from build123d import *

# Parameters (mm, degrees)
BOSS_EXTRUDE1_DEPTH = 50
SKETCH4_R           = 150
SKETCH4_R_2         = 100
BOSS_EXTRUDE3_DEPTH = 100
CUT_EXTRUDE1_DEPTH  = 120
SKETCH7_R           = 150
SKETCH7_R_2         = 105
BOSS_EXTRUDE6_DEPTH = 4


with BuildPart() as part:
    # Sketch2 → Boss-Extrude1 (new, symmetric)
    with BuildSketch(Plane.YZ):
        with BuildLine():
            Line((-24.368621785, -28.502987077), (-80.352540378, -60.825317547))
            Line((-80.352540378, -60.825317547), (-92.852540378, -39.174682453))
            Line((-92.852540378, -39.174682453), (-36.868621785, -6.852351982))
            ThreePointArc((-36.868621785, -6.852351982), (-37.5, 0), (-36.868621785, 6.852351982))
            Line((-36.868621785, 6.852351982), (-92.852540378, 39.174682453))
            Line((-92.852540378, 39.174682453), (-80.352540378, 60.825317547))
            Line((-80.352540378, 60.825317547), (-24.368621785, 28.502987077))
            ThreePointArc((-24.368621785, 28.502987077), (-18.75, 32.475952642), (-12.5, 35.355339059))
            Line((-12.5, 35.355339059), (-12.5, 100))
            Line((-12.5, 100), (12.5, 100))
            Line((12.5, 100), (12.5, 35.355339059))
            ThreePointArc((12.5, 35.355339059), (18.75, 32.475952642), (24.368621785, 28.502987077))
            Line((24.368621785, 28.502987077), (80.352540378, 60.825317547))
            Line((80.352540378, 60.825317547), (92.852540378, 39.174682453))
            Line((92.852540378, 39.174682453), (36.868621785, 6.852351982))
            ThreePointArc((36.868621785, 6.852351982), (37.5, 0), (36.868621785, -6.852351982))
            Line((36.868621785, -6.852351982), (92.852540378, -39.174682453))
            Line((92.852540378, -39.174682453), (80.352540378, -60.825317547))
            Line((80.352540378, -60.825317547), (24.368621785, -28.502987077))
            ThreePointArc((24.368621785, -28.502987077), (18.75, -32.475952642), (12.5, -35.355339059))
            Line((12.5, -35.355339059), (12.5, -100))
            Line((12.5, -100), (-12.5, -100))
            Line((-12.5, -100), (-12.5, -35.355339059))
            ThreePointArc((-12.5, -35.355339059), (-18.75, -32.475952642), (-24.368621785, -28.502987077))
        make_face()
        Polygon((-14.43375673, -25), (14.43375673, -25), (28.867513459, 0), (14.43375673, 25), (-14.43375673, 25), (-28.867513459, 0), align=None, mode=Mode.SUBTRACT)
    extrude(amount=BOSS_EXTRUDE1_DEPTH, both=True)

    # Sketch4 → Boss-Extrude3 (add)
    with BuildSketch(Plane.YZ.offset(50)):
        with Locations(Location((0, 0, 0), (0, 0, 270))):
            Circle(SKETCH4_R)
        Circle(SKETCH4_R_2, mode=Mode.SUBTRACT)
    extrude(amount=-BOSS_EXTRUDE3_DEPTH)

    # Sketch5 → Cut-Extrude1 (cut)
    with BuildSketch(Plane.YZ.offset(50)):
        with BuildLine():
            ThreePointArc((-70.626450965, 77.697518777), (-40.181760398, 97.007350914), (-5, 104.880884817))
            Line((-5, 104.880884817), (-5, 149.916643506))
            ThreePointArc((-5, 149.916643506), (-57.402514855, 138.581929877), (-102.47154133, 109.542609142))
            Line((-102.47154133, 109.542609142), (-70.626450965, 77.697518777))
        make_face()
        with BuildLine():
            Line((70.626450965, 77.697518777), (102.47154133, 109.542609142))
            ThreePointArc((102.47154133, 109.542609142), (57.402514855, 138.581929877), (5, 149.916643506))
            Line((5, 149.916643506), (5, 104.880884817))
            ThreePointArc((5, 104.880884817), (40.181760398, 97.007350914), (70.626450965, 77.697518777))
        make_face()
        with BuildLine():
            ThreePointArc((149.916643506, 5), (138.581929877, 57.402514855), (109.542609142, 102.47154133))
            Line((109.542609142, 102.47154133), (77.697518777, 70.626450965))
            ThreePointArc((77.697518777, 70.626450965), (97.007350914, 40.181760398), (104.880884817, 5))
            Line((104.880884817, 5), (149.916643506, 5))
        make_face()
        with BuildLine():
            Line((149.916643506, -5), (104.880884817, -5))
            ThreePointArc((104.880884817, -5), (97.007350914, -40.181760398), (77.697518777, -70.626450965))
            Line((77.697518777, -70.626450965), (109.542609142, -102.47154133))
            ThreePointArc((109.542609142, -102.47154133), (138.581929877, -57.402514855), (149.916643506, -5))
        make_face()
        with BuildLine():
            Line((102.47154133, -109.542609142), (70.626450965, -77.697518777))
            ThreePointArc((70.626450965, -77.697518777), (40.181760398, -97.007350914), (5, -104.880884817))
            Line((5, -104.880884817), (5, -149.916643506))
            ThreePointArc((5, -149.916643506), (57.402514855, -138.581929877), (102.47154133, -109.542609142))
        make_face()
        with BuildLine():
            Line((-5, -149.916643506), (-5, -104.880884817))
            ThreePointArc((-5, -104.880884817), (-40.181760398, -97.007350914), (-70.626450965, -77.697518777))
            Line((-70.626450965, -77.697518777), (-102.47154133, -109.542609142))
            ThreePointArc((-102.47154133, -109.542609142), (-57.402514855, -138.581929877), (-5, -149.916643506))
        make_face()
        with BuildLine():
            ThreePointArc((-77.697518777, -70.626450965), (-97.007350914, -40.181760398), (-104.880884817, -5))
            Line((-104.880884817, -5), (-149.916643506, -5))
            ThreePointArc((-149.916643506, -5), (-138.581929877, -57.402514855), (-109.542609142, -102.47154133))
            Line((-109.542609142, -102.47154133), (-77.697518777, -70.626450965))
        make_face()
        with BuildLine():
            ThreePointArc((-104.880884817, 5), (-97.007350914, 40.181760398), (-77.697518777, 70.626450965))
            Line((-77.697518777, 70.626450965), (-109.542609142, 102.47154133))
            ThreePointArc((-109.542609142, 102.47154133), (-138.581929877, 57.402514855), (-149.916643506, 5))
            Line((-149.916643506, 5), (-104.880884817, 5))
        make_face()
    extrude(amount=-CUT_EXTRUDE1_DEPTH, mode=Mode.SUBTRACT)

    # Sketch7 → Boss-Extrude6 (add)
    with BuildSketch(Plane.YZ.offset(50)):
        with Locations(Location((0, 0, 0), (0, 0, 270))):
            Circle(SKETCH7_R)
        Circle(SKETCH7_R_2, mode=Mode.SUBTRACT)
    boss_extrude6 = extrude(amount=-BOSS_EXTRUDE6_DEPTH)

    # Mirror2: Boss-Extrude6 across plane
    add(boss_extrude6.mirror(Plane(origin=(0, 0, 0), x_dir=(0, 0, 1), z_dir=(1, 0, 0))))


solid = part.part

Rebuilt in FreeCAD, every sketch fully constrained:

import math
import FreeCAD as App
import Part
import Sketcher

V = App.Vector
Q = App.Units.Quantity


def add_polygon(sketch, points):
    """Adds a closed chain of lines whose ends are joined by coincident constraints."""
    first, n = sketch.GeometryCount, len(points)
    for a, b in zip(points, points[1:] + points[:1]):
        sketch.addGeometry(Part.LineSegment(App.Vector(*a, 0), App.Vector(*b, 0)), False)
    for i in range(n):
        sketch.addConstraint(Sketcher.Constraint("Coincident", first + i, 2, first + (i + 1) % n, 1))

doc = App.newDocument("Part")
body = doc.addObject("PartDesign::Body", "Body")

# Sketch on YZ plane
sketch1 = doc.addObject("Sketcher::SketchObject", "Sketch")
body.addObject(sketch1)
sketch1.AttachmentSupport = (doc.YZ_Plane, [""])
sketch1.MapMode = "FlatFace"
sketch1.addGeometry(Part.LineSegment(V(-80.35254, -60.825318, 0), V(-24.368622, -28.502987, 0)), False)  # 0
sketch1.addGeometry(Part.ArcOfCircle(Part.Circle(V(0, 0, 0), V(0, 0, 1), 37.5), math.radians(-130.528779), math.radians(-109.471221)), False)  # 1
sketch1.addGeometry(Part.LineSegment(V(-12.5, -35.355339, 0), V(-12.5, -100, 0)), False)  # 2
sketch1.addGeometry(Part.LineSegment(V(-12.5, -100, 0), V(12.5, -100, 0)), False)  # 3
sketch1.addGeometry(Part.LineSegment(V(12.5, -100, 0), V(12.5, -35.355339, 0)), False)  # 4
sketch1.addGeometry(Part.ArcOfCircle(Part.Circle(V(0, 0, 0), V(0, 0, 1), 37.5), math.radians(-70.528779), math.radians(-49.471221)), False)  # 5
sketch1.addGeometry(Part.LineSegment(V(24.368622, -28.502987, 0), V(80.35254, -60.825318, 0)), False)  # 6
sketch1.addGeometry(Part.LineSegment(V(80.35254, -60.825318, 0), V(92.85254, -39.174682, 0)), False)  # 7
sketch1.addGeometry(Part.LineSegment(V(92.85254, -39.174682, 0), V(36.868622, -6.852352, 0)), False)  # 8
sketch1.addGeometry(Part.ArcOfCircle(Part.Circle(V(0, 0, 0), V(0, 0, 1), 37.5), math.radians(-10.528779), math.radians(10.528779)), False)  # 9
sketch1.addGeometry(Part.LineSegment(V(36.868622, 6.852352, 0), V(92.85254, 39.174682, 0)), False)  # 10
sketch1.addGeometry(Part.LineSegment(V(92.85254, 39.174682, 0), V(80.35254, 60.825318, 0)), False)  # 11
sketch1.addGeometry(Part.LineSegment(V(80.35254, 60.825318, 0), V(24.368622, 28.502987, 0)), False)  # 12
sketch1.addGeometry(Part.ArcOfCircle(Part.Circle(V(0, 0, 0), V(0, 0, 1), 37.5), math.radians(49.471221), math.radians(70.528779)), False)  # 13
sketch1.addGeometry(Part.LineSegment(V(12.5, 35.355339, 0), V(12.5, 100, 0)), False)  # 14
sketch1.addGeometry(Part.LineSegment(V(12.5, 100, 0), V(-12.5, 100, 0)), False)  # 15
sketch1.addGeometry(Part.LineSegment(V(-12.5, 100, 0), V(-12.5, 35.355339, 0)), False)  # 16
sketch1.addGeometry(Part.ArcOfCircle(Part.Circle(V(0, 0, 0), V(0, 0, 1), 37.5), math.radians(109.471221), math.radians(130.528779)), False)  # 17
sketch1.addGeometry(Part.LineSegment(V(-24.368622, 28.502987, 0), V(-80.35254, 60.825318, 0)), False)  # 18
sketch1.addGeometry(Part.LineSegment(V(-80.35254, 60.825318, 0), V(-92.85254, 39.174682, 0)), False)  # 19
sketch1.addGeometry(Part.LineSegment(V(-92.85254, 39.174682, 0), V(-36.868622, 6.852352, 0)), False)  # 20
sketch1.addGeometry(Part.ArcOfCircle(Part.Circle(V(0, 0, 0), V(0, 0, 1), 37.5), math.radians(169.471221), math.radians(190.528779)), False)  # 21
sketch1.addGeometry(Part.LineSegment(V(-36.868622, -6.852352, 0), V(-92.85254, -39.174682, 0)), False)  # 22
sketch1.addGeometry(Part.LineSegment(V(-92.85254, -39.174682, 0), V(-80.35254, -60.825318, 0)), False)  # 23
add_polygon(sketch1, [(-14.433757, -25), (-28.867513, 0), (-14.433757, 25), (14.433757, 25), (28.867513, 0), (14.433757, -25)])  # lines 24-29
sketch1.addConstraint([
    Sketcher.Constraint("Coincident", 0, 2, 1, 1),
    Sketcher.Constraint("Coincident", 1, 2, 2, 1),
    Sketcher.Constraint("Coincident", 2, 2, 3, 1),
    Sketcher.Constraint("Coincident", 3, 2, 4, 1),
    Sketcher.Constraint("Coincident", 4, 2, 5, 1),
    Sketcher.Constraint("Coincident", 5, 2, 6, 1),
    Sketcher.Constraint("Coincident", 6, 2, 7, 1),
    Sketcher.Constraint("Coincident", 7, 2, 8, 1),
    Sketcher.Constraint("Coincident", 8, 2, 9, 1),
    Sketcher.Constraint("Coincident", 9, 2, 10, 1),
    Sketcher.Constraint("Coincident", 10, 2, 11, 1),
    Sketcher.Constraint("Coincident", 11, 2, 12, 1),
    Sketcher.Constraint("Coincident", 12, 2, 13, 1),
    Sketcher.Constraint("Coincident", 13, 2, 14, 1),
    Sketcher.Constraint("Coincident", 14, 2, 15, 1),
    Sketcher.Constraint("Coincident", 15, 2, 16, 1),
    Sketcher.Constraint("Coincident", 16, 2, 17, 1),
    Sketcher.Constraint("Coincident", 17, 2, 18, 1),
    Sketcher.Constraint("Coincident", 18, 2, 19, 1),
    Sketcher.Constraint("Coincident", 19, 2, 20, 1),
    Sketcher.Constraint("Coincident", 20, 2, 21, 1),
    Sketcher.Constraint("Coincident", 21, 2, 22, 1),
    Sketcher.Constraint("Coincident", 22, 2, 23, 1),
    Sketcher.Constraint("Coincident", 23, 2, 0, 1),
    Sketcher.Constraint("Vertical", 2),
    Sketcher.Constraint("Horizontal", 3),
    Sketcher.Constraint("Vertical", 4),
    Sketcher.Constraint("Vertical", 14),
    Sketcher.Constraint("Horizontal", 15),
    Sketcher.Constraint("Vertical", 16),
    Sketcher.Constraint("Horizontal", 26),
    Sketcher.Constraint("Horizontal", 29),
    Sketcher.Constraint("Coincident", 1, 3, -1, 1),
    Sketcher.Constraint("Coincident", 5, 3, -1, 1),
    Sketcher.Constraint("Coincident", 9, 3, -1, 1),
    Sketcher.Constraint("Coincident", 13, 3, -1, 1),
    Sketcher.Constraint("Coincident", 17, 3, -1, 1),
    Sketcher.Constraint("Coincident", 21, 3, -1, 1),
    Sketcher.Constraint("Equal", 1, 5),
    Sketcher.Constraint("Equal", 5, 9),
    Sketcher.Constraint("Equal", 9, 13),
    Sketcher.Constraint("Equal", 13, 17),
    Sketcher.Constraint("Equal", 17, 21),
    Sketcher.Constraint("Symmetric", 2, 2, 14, 2, -1, 1),
    Sketcher.Constraint("Symmetric", 6, 2, 18, 2, -1, 1),
    Sketcher.Constraint("Symmetric", 7, 2, 19, 2, -1, 1),
    Sketcher.Constraint("Symmetric", 10, 2, 22, 2, -1, 1),
    Sketcher.Constraint("Symmetric", 11, 2, 23, 2, -1, 1),
    Sketcher.Constraint("Symmetric", 24, 2, 27, 2, -1, 1),
    Sketcher.Constraint("Symmetric", 25, 2, 28, 2, -1, 1),
    Sketcher.Constraint("Symmetric", 11, 2, 18, 2, -2),
    Sketcher.Constraint("Symmetric", 10, 2, 19, 2, -2),
    Sketcher.Constraint("PointOnObject", 24, 2, -1),
    Sketcher.Constraint("Perpendicular", 6, 7),
    Sketcher.Constraint("Perpendicular", 7, 8),
    Sketcher.Constraint("Parallel", 0, 10),
    Sketcher.Constraint("Perpendicular", 10, 11),
    Sketcher.Constraint("Perpendicular", 11, 12),
    Sketcher.Constraint("Parallel", 8, 18),
    Sketcher.Constraint("Perpendicular", 19, 20),
    Sketcher.Constraint("Parallel", 12, 22),
    Sketcher.Constraint("Parallel", 23, 24),
    Sketcher.Constraint("Perpendicular", 20, 25),
    Sketcher.Constraint("Parallel", 24, 27),
    Sketcher.Constraint("Horizontal", 1, 2, 4, 2),
    Sketcher.Constraint("Horizontal", 13, 2, 16, 2),
    Sketcher.Constraint("Equal", 6, 8),
    Sketcher.Constraint("Radius", 1, Q("37.5 mm")),
    Sketcher.Constraint("DistanceX", 3, 1, 3, 2, Q("25 mm")),
    Sketcher.Constraint("Angle", 0, Q("30 deg")),
    Sketcher.Constraint("Distance", 7, Q("25 mm")),
    Sketcher.Constraint("DistanceY", 2, 2, -1, 1, Q("100 mm")),
    Sketcher.Constraint("DistanceY", -1, 1, 25, 2, Q("25 mm")),
    Sketcher.Constraint("Distance", 0, Q("64.644661 mm")),
    Sketcher.Constraint("DistanceX", 26, 1, 26, 2, Q("28.867513 mm")),
])
pad1 = doc.addObject("PartDesign::Pad", "Pad")
body.addObject(pad1)
pad1.Profile = sketch1
pad1.Length = 100
pad1.Midplane = True

# Sketch on YZ plane
sketch2 = doc.addObject("Sketcher::SketchObject", "Sketch001")
body.addObject(sketch2)
sketch2.AttachmentSupport = (doc.YZ_Plane, [""])
sketch2.MapMode = "FlatFace"
sketch2.AttachmentOffset = App.Placement(V(0, 0, 50), App.Rotation())
sketch2.addGeometry([
    Part.Circle(V(0, 0, 0), V(0, 0, 1), 150),
    Part.Circle(V(0, 0, 0), V(0, 0, 1), 100),
], False)
sketch2.addConstraint([
    Sketcher.Constraint("Coincident", 0, 3, -1, 1),
    Sketcher.Constraint("Coincident", 1, 3, -1, 1),
    Sketcher.Constraint("Diameter", 0, Q("300 mm")),
    Sketcher.Constraint("Diameter", 1, Q("200 mm")),
])
pad2 = doc.addObject("PartDesign::Pad", "Pad001")
body.addObject(pad2)
pad2.Profile = sketch2
pad2.Length = 100
pad2.Reversed = True

# Sketch on YZ plane
sketch3 = doc.addObject("Sketcher::SketchObject", "Sketch002")
body.addObject(sketch3)
sketch3.AttachmentSupport = (doc.YZ_Plane, [""])
sketch3.MapMode = "FlatFace"
sketch3.AttachmentOffset = App.Placement(V(0, 0, 50), App.Rotation())
sketch3.addGeometry([
    Part.ArcOfCircle(Part.Circle(V(0, 0, 0), V(0, 0, 1), 105), math.radians(92.729403), math.radians(132.270597)),  # 0
    Part.LineSegment(V(-5, 104.880885, 0), V(-5, 149.916644, 0)),  # 1
    Part.ArcOfCircle(Part.Circle(V(0, 0, 0), V(0, 0, 1), 150), math.radians(91.910213), math.radians(133.089787)),  # 2
    Part.LineSegment(V(-102.471541, 109.542609, 0), V(-70.626451, 77.697519, 0)),  # 3
    Part.LineSegment(V(70.626451, 77.697519, 0), V(102.471541, 109.542609, 0)),  # 4
    Part.ArcOfCircle(Part.Circle(V(0, 0, 0), V(0, 0, 1), 150), math.radians(46.910213), math.radians(88.089787)),  # 5
    Part.LineSegment(V(5, 149.916644, 0), V(5, 104.880885, 0)),  # 6
    Part.ArcOfCircle(Part.Circle(V(0, 0, 0), V(0, 0, 1), 105), math.radians(47.729403), math.radians(87.270597)),  # 7
    Part.ArcOfCircle(Part.Circle(V(0, 0, 0), V(0, 0, 1), 150), math.radians(1.910213), math.radians(43.089787)),  # 8
    Part.LineSegment(V(109.542609, 102.471541, 0), V(77.697519, 70.626451, 0)),  # 9
    Part.ArcOfCircle(Part.Circle(V(0, 0, 0), V(0, 0, 1), 105), math.radians(2.729403), math.radians(42.270597)),  # 10
    Part.LineSegment(V(104.880885, 5, 0), V(149.916644, 5, 0)),  # 11
    Part.LineSegment(V(149.916644, -5, 0), V(104.880885, -5, 0)),  # 12
    Part.ArcOfCircle(Part.Circle(V(0, 0, 0), V(0, 0, 1), 105), math.radians(-42.270597), math.radians(-2.729403)),  # 13
    Part.LineSegment(V(77.697519, -70.626451, 0), V(109.542609, -102.471541, 0)),  # 14
    Part.ArcOfCircle(Part.Circle(V(0, 0, 0), V(0, 0, 1), 150), math.radians(-43.089787), math.radians(-1.910213)),  # 15
    Part.LineSegment(V(102.471541, -109.542609, 0), V(70.626451, -77.697519, 0)),  # 16
    Part.ArcOfCircle(Part.Circle(V(0, 0, 0), V(0, 0, 1), 105), math.radians(-87.270597), math.radians(-47.729403)),  # 17
    Part.LineSegment(V(5, -104.880885, 0), V(5, -149.916644, 0)),  # 18
    Part.ArcOfCircle(Part.Circle(V(0, 0, 0), V(0, 0, 1), 150), math.radians(-88.089787), math.radians(-46.910213)),  # 19
    Part.LineSegment(V(-5, -149.916644, 0), V(-5, -104.880885, 0)),  # 20
    Part.ArcOfCircle(Part.Circle(V(0, 0, 0), V(0, 0, 1), 105), math.radians(-132.270597), math.radians(-92.729403)),  # 21
    Part.LineSegment(V(-70.626451, -77.697519, 0), V(-102.471541, -109.542609, 0)),  # 22
    Part.ArcOfCircle(Part.Circle(V(0, 0, 0), V(0, 0, 1), 150), math.radians(-133.089787), math.radians(-91.910213)),  # 23
    Part.ArcOfCircle(Part.Circle(V(0, 0, 0), V(0, 0, 1), 105), math.radians(-177.270597), math.radians(-137.729403)),  # 24
    Part.LineSegment(V(-104.880885, -5, 0), V(-149.916644, -5, 0)),  # 25
    Part.ArcOfCircle(Part.Circle(V(0, 0, 0), V(0, 0, 1), 150), math.radians(-178.089787), math.radians(-136.910213)),  # 26
    Part.LineSegment(V(-109.542609, -102.471541, 0), V(-77.697519, -70.626451, 0)),  # 27
    Part.ArcOfCircle(Part.Circle(V(0, 0, 0), V(0, 0, 1), 105), math.radians(137.729403), math.radians(177.270597)),  # 28
    Part.LineSegment(V(-77.697519, 70.626451, 0), V(-109.542609, 102.471541, 0)),  # 29
    Part.ArcOfCircle(Part.Circle(V(0, 0, 0), V(0, 0, 1), 150), math.radians(136.910213), math.radians(178.089787)),  # 30
    Part.LineSegment(V(-149.916644, 5, 0), V(-104.880885, 5, 0)),  # 31
], False)
sketch3.addConstraint([
    Sketcher.Constraint("Coincident", 0, 1, 1, 1),
    Sketcher.Constraint("Coincident", 1, 2, 2, 1),
    Sketcher.Constraint("Coincident", 2, 2, 3, 1),
    Sketcher.Constraint("Coincident", 3, 2, 0, 2),
    Sketcher.Constraint("Coincident", 4, 2, 5, 1),
    Sketcher.Constraint("Coincident", 5, 2, 6, 1),
    Sketcher.Constraint("Coincident", 6, 2, 7, 2),
    Sketcher.Constraint("Coincident", 7, 1, 4, 1),
    Sketcher.Constraint("Coincident", 8, 2, 9, 1),
    Sketcher.Constraint("Coincident", 9, 2, 10, 2),
    Sketcher.Constraint("Coincident", 10, 1, 11, 1),
    Sketcher.Constraint("Coincident", 11, 2, 8, 1),
    Sketcher.Constraint("Coincident", 12, 2, 13, 2),
    Sketcher.Constraint("Coincident", 13, 1, 14, 1),
    Sketcher.Constraint("Coincident", 14, 2, 15, 1),
    Sketcher.Constraint("Coincident", 15, 2, 12, 1),
    Sketcher.Constraint("Coincident", 16, 2, 17, 2),
    Sketcher.Constraint("Coincident", 17, 1, 18, 1),
    Sketcher.Constraint("Coincident", 18, 2, 19, 1),
    Sketcher.Constraint("Coincident", 19, 2, 16, 1),
    Sketcher.Constraint("Coincident", 20, 2, 21, 2),
    Sketcher.Constraint("Coincident", 21, 1, 22, 1),
    Sketcher.Constraint("Coincident", 22, 2, 23, 1),
    Sketcher.Constraint("Coincident", 23, 2, 20, 1),
    Sketcher.Constraint("Coincident", 24, 1, 25, 1),
    Sketcher.Constraint("Coincident", 25, 2, 26, 1),
    Sketcher.Constraint("Coincident", 26, 2, 27, 1),
    Sketcher.Constraint("Coincident", 27, 2, 24, 2),
    Sketcher.Constraint("Coincident", 28, 1, 29, 1),
    Sketcher.Constraint("Coincident", 29, 2, 30, 1),
    Sketcher.Constraint("Coincident", 30, 2, 31, 1),
    Sketcher.Constraint("Coincident", 31, 2, 28, 2),
    Sketcher.Constraint("Vertical", 1),
    Sketcher.Constraint("Vertical", 6),
    Sketcher.Constraint("Horizontal", 11),
    Sketcher.Constraint("Horizontal", 12),
    Sketcher.Constraint("Vertical", 18),
    Sketcher.Constraint("Vertical", 20),
    Sketcher.Constraint("Horizontal", 25),
    Sketcher.Constraint("Horizontal", 31),
    Sketcher.Constraint("Coincident", 0, 3, -1, 1),
    Sketcher.Constraint("Coincident", 2, 3, -1, 1),
    Sketcher.Constraint("Coincident", 5, 3, -1, 1),
    Sketcher.Constraint("Coincident", 7, 3, -1, 1),
    Sketcher.Constraint("Coincident", 8, 3, -1, 1),
    Sketcher.Constraint("Coincident", 10, 3, -1, 1),
    Sketcher.Constraint("Coincident", 13, 3, -1, 1),
    Sketcher.Constraint("Coincident", 15, 3, -1, 1),
    Sketcher.Constraint("Coincident", 17, 3, -1, 1),
    Sketcher.Constraint("Coincident", 19, 3, -1, 1),
    Sketcher.Constraint("Coincident", 21, 3, -1, 1),
    Sketcher.Constraint("Coincident", 23, 3, -1, 1),
    Sketcher.Constraint("Coincident", 24, 3, -1, 1),
    Sketcher.Constraint("Coincident", 26, 3, -1, 1),
    Sketcher.Constraint("Coincident", 28, 3, -1, 1),
    Sketcher.Constraint("Coincident", 30, 3, -1, 1),
    Sketcher.Constraint("Radius", 0, Q("105 mm")),
    Sketcher.Constraint("Radius", 2, Q("150 mm")),
    Sketcher.Constraint("Radius", 5, Q("150 mm")),
    Sketcher.Constraint("Radius", 7, Q("105 mm")),
    Sketcher.Constraint("Radius", 8, Q("150 mm")),
    Sketcher.Constraint("Radius", 10, Q("105 mm")),
    Sketcher.Constraint("Radius", 13, Q("105 mm")),
    Sketcher.Constraint("Radius", 15, Q("150 mm")),
    Sketcher.Constraint("Radius", 17, Q("105 mm")),
    Sketcher.Constraint("Radius", 19, Q("150 mm")),
    Sketcher.Constraint("Radius", 21, Q("105 mm")),
    Sketcher.Constraint("Radius", 23, Q("150 mm")),
    Sketcher.Constraint("Radius", 24, Q("105 mm")),
    Sketcher.Constraint("Radius", 26, Q("150 mm")),
    Sketcher.Constraint("Radius", 28, Q("105 mm")),
    Sketcher.Constraint("Radius", 30, Q("150 mm")),
    Sketcher.Constraint("DistanceX", 0, 1, -1, 1, Q("5 mm")),
    Sketcher.Constraint("DistanceX", -1, 1, 5, 2, Q("5 mm")),
    Sketcher.Constraint("DistanceY", -1, 1, 10, 1, Q("5 mm")),
    Sketcher.Constraint("DistanceY", 12, 2, -1, 1, Q("5 mm")),
    Sketcher.Constraint("DistanceX", -1, 1, 17, 1, Q("5 mm")),
    Sketcher.Constraint("DistanceX", 20, 2, -1, 1, Q("5 mm")),
    Sketcher.Constraint("DistanceY", 24, 1, -1, 1, Q("5 mm")),
    Sketcher.Constraint("DistanceY", -1, 1, 30, 2, Q("5 mm")),
    Sketcher.Constraint("Distance", 3, Q("45.035759 mm")),
    Sketcher.Constraint("Distance", 4, Q("45.035759 mm")),
    Sketcher.Constraint("Distance", 9, Q("45.035759 mm")),
    Sketcher.Constraint("Distance", 14, Q("45.035759 mm")),
    Sketcher.Constraint("Distance", 16, Q("45.035759 mm")),
    Sketcher.Constraint("Distance", 22, Q("45.035759 mm")),
    Sketcher.Constraint("Distance", 27, Q("45.035759 mm")),
    Sketcher.Constraint("Distance", 29, Q("45.035759 mm")),
    Sketcher.Constraint("DistanceX", 2, 2, -1, 1, Q("102.471541 mm")),
    Sketcher.Constraint("DistanceX", -1, 1, 4, 2, Q("102.471541 mm")),
    Sketcher.Constraint("DistanceX", -1, 1, 8, 2, Q("109.542609 mm")),
    Sketcher.Constraint("DistanceX", -1, 1, 13, 1, Q("77.697519 mm")),
    Sketcher.Constraint("DistanceX", -1, 1, 16, 2, Q("70.626451 mm")),
    Sketcher.Constraint("DistanceX", 21, 1, -1, 1, Q("70.626451 mm")),
    Sketcher.Constraint("DistanceX", 26, 2, -1, 1, Q("109.542609 mm")),
    Sketcher.Constraint("DistanceX", 28, 1, -1, 1, Q("77.697519 mm")),
])
pocket1 = doc.addObject("PartDesign::Pocket", "Pocket")
body.addObject(pocket1)
pocket1.Profile = sketch3
pocket1.Length = 120

# Sketch on YZ plane
sketch4 = doc.addObject("Sketcher::SketchObject", "Sketch003")
body.addObject(sketch4)
sketch4.AttachmentSupport = (doc.YZ_Plane, [""])
sketch4.MapMode = "FlatFace"
sketch4.AttachmentOffset = App.Placement(V(0, 0, 50), App.Rotation())
sketch4.addGeometry([
    Part.Circle(V(0, 0, 0), V(0, 0, 1), 150),
    Part.Circle(V(0, 0, 0), V(0, 0, 1), 105),
], False)
sketch4.addConstraint([
    Sketcher.Constraint("Coincident", 0, 3, -1, 1),
    Sketcher.Constraint("Coincident", 1, 3, -1, 1),
    Sketcher.Constraint("Diameter", 0, Q("300 mm")),
    Sketcher.Constraint("Diameter", 1, Q("210 mm")),
])
pad3 = doc.addObject("PartDesign::Pad", "Pad002")
body.addObject(pad3)
pad3.Profile = sketch4
pad3.Length = 4
pad3.Reversed = True
doc.recompute()

mirrored = doc.addObject("PartDesign::Mirrored", "Mirrored")
body.addObject(mirrored)
mirrored.Originals = [pad3]
mirrored.MirrorPlane = (doc.YZ_Plane, [""])
body.Tip = mirrored

doc.recompute()
